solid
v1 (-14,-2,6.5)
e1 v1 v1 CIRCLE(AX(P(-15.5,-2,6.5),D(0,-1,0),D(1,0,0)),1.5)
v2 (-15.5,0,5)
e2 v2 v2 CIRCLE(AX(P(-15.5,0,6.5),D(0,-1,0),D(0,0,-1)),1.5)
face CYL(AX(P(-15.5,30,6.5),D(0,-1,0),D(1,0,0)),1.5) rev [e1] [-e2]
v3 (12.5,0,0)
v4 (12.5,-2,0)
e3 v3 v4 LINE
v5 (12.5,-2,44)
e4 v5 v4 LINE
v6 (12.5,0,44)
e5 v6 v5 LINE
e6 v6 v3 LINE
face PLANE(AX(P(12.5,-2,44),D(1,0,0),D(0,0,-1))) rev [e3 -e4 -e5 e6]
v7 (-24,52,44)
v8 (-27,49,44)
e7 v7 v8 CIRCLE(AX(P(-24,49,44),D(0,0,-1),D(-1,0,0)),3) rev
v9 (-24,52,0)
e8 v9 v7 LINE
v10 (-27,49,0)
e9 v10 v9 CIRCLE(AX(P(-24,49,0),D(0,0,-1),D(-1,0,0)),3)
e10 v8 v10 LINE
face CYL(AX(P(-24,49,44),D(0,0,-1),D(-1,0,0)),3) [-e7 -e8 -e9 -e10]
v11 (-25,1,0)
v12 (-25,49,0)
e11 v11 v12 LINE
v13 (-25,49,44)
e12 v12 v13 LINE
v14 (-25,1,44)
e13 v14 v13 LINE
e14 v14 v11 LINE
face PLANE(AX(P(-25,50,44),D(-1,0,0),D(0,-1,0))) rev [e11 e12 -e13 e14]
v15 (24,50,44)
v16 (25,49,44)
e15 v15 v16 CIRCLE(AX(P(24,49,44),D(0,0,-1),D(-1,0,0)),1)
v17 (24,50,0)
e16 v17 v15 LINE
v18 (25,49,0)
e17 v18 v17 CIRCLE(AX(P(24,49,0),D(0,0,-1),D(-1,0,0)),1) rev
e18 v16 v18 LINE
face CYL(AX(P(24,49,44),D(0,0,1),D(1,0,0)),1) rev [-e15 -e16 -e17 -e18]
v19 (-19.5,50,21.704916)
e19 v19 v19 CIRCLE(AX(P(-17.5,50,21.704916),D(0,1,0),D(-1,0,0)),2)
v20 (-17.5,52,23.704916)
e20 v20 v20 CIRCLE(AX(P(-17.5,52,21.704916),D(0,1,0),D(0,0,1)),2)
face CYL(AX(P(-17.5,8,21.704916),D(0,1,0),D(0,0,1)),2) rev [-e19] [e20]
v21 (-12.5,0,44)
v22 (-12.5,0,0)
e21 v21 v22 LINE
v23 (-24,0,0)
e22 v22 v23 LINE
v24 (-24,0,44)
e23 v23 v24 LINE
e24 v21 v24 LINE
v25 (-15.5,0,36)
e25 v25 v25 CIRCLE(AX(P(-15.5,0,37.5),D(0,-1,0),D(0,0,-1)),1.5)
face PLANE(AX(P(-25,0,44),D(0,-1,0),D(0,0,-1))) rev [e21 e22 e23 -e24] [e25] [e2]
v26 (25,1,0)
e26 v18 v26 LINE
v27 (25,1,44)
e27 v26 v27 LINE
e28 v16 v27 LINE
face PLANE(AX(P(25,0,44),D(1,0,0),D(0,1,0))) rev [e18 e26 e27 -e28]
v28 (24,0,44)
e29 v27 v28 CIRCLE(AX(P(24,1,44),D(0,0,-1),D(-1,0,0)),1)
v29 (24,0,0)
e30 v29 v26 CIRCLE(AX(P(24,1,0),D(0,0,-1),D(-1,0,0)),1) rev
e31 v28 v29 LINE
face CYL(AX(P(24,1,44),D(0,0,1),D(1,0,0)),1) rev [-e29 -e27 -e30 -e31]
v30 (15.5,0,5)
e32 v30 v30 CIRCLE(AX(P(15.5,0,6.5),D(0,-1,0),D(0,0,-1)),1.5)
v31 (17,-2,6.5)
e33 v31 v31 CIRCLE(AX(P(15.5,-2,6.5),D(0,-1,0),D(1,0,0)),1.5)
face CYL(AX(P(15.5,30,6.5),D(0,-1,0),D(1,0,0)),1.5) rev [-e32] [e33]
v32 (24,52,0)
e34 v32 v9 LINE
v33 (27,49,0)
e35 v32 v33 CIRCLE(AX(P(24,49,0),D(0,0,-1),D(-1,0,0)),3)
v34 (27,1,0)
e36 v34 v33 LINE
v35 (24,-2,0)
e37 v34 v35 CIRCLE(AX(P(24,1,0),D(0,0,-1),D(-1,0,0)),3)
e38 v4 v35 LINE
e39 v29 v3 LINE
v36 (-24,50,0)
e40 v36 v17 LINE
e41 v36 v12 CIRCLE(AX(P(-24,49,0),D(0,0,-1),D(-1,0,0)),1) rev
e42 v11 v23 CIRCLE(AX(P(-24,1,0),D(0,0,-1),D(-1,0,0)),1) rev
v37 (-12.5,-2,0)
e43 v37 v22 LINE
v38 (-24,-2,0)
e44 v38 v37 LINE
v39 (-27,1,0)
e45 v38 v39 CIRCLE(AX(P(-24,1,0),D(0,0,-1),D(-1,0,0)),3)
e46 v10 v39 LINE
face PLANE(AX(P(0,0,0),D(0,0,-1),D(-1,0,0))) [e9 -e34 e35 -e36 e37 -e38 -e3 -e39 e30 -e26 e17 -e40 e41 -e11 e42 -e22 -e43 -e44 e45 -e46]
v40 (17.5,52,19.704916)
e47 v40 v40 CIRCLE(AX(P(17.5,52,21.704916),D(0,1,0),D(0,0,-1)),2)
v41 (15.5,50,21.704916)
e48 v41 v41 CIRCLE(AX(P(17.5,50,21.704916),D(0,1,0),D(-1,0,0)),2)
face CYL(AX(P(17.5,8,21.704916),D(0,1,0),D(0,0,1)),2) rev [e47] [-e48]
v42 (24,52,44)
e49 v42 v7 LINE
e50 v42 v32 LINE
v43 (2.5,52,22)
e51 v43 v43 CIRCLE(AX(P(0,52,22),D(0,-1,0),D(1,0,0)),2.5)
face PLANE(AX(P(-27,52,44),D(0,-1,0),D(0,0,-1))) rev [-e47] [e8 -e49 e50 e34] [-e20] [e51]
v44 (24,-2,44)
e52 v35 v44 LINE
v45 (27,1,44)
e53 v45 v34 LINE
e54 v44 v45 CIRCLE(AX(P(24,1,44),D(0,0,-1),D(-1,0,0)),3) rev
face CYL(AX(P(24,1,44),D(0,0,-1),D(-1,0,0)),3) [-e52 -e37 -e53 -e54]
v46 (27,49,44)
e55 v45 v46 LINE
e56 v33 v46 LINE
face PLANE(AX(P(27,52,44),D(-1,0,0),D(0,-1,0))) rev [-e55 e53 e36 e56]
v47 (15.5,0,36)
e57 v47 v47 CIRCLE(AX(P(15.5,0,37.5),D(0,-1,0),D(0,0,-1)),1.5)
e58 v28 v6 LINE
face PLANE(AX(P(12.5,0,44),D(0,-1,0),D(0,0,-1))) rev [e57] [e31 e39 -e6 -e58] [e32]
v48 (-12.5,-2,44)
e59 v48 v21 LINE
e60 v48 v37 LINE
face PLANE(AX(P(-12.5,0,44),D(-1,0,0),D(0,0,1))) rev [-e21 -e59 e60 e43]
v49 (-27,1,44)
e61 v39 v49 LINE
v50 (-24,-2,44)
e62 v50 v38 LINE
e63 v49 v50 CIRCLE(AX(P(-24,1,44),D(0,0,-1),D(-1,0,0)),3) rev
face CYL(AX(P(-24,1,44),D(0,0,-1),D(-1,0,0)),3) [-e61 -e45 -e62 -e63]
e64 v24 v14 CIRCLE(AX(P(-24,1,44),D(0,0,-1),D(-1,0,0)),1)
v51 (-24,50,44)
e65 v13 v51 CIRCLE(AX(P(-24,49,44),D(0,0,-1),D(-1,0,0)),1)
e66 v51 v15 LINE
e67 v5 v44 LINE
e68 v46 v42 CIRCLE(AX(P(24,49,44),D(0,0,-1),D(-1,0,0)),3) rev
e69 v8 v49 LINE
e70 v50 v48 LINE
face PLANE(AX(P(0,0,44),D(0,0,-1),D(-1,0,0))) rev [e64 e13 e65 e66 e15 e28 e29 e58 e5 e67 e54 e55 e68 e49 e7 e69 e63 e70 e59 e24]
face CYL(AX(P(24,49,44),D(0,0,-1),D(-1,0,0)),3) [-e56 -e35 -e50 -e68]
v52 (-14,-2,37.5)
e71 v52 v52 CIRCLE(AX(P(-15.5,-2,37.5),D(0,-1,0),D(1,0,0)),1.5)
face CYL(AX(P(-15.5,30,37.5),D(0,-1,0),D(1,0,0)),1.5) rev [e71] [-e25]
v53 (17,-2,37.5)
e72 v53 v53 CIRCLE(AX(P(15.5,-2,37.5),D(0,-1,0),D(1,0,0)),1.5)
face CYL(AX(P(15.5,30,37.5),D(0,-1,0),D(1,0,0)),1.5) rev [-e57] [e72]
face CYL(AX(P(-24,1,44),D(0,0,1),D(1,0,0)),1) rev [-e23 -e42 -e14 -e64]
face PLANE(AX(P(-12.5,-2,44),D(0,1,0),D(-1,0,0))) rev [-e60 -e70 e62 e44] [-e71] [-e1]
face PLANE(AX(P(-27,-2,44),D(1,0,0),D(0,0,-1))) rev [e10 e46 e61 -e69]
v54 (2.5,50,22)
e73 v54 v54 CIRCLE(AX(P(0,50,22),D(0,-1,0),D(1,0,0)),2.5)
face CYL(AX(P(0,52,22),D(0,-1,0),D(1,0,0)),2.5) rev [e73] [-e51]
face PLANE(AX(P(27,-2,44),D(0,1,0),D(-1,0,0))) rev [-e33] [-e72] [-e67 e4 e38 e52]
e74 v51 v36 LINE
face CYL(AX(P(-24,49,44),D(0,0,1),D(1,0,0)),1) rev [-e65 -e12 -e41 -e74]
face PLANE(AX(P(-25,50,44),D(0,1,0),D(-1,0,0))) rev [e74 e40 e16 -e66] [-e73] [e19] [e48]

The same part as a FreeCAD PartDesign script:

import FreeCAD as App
import Part
import Sketcher

V = App.Vector
Q = App.Units.Quantity


def edges_at(feature, points):
    """Names of the edges that pass closest to the given points."""
    edges = feature.Shape.Edges
    near = lambda p: min(range(len(edges)), key=lambda i: edges[i].distToShape(Part.Vertex(*p))[0])
    return sorted({f"Edge{near(p) + 1}" for p in points})

doc = App.newDocument("Part")
params = doc.addObject("Spreadsheet::Sheet", "Params")
for row, (alias, value) in enumerate([
    ("sketch1_width", "50 mm"),
    ("sketch1_width2", "54 mm"),
    ("sketch1_height", "2 mm"),
    ("sketch1_width3", "12.5 mm"),
    ("pad1_length", "44 mm"),
    ("sketch2_diameter", "3 mm"),
    ("pocket1_length", "32 mm"),
    ("sketch3_diameter", "5 mm"),
    ("sketch4_diameter", "4 mm"),
    ("pocket3_length", "44 mm"),
    ("fillet_radius", "1 mm"),
    ("fillet2_radius", "3 mm"),
], start=1):
    params.set(f"A{row}", alias)
    params.set(f"B{row}", "=" + value)
    params.setAlias(f"B{row}", alias)

body = doc.addObject("PartDesign::Body", "Body")

# Sketch on XY plane
sketch1 = doc.addObject("Sketcher::SketchObject", "Sketch")
body.addObject(sketch1)
sketch1.AttachmentSupport = (doc.XY_Plane, [""])
sketch1.MapMode = "FlatFace"
sketch1.addGeometry([
    Part.LineSegment(V(-25, 50, 0), V(25, 50, 0)),  # 0
    Part.LineSegment(V(25, 50, 0), V(25, 0, 0)),  # 1
    Part.LineSegment(V(25, 0, 0), V(12.5, 0, 0)),  # 2
    Part.LineSegment(V(12.5, 0, 0), V(12.5, -2, 0)),  # 3
    Part.LineSegment(V(12.5, -2, 0), V(27, -2, 0)),  # 4
    Part.LineSegment(V(27, -2, 0), V(27, 52, 0)),  # 5
    Part.LineSegment(V(27, 52, 0), V(-27, 52, 0)),  # 6
    Part.LineSegment(V(-27, 52, 0), V(-27, -2, 0)),  # 7
    Part.LineSegment(V(-27, -2, 0), V(-12.5, -2, 0)),  # 8
    Part.LineSegment(V(-12.5, -2, 0), V(-12.5, 0, 0)),  # 9
    Part.LineSegment(V(-12.5, 0, 0), V(-25, 0, 0)),  # 10
    Part.LineSegment(V(-25, 0, 0), V(-25, 50, 0)),  # 11
], False)
sketch1.addConstraint([
    Sketcher.Constraint("Coincident", 0, 2, 1, 1),
    Sketcher.Constraint("Coincident", 1, 2, 2, 1),
    Sketcher.Constraint("Coincident", 2, 2, 3, 1),
    Sketcher.Constraint("Coincident", 3, 2, 4, 1),
    Sketcher.Constraint("Coincident", 4, 2, 5, 1),
    Sketcher.Constraint("Coincident", 5, 2, 6, 1),
    Sketcher.Constraint("Coincident", 6, 2, 7, 1),
    Sketcher.Constraint("Coincident", 7, 2, 8, 1),
    Sketcher.Constraint("Coincident", 8, 2, 9, 1),
    Sketcher.Constraint("Coincident", 9, 2, 10, 1),
    Sketcher.Constraint("Coincident", 10, 2, 11, 1),
    Sketcher.Constraint("Coincident", 11, 2, 0, 1),
    Sketcher.Constraint("Horizontal", 0),
    Sketcher.Constraint("Vertical", 1),
    Sketcher.Constraint("Horizontal", 2),
    Sketcher.Constraint("Vertical", 3),
    Sketcher.Constraint("Horizontal", 4),
    Sketcher.Constraint("Vertical", 5),
    Sketcher.Constraint("Horizontal", 6),
    Sketcher.Constraint("Vertical", 7),
    Sketcher.Constraint("Horizontal", 8),
    Sketcher.Constraint("Vertical", 9),
    Sketcher.Constraint("Horizontal", 10),
    Sketcher.Constraint("Vertical", 11),
    Sketcher.Constraint("Symmetric", 2, 2, 9, 2, -1, 1),
    Sketcher.Constraint("Symmetric", 4, 2, 7, 2, -2),
    Sketcher.Constraint("Symmetric", 1, 2, 10, 2, -2),
    Sketcher.Constraint("Equal", 0, 1),
    Sketcher.Constraint("Equal", 6, 5),
    Sketcher.Constraint("DistanceX", 0, 1, 0, 2, Q("50 mm")),
    Sketcher.Constraint("DistanceX", 6, 2, 6, 1, Q("54 mm")),
    Sketcher.Constraint("DistanceY", 3, 2, 3, 1, Q("2 mm")),
    Sketcher.Constraint("DistanceX", 2, 2, 2, 1, Q("12.5 mm")),
])
sketch1.setExpression("Constraints[29]", "Params.sketch1_width")
sketch1.setExpression("Constraints[30]", "Params.sketch1_width2")
sketch1.setExpression("Constraints[31]", "Params.sketch1_height")
sketch1.setExpression("Constraints[32]", "Params.sketch1_width3")
pad1 = doc.addObject("PartDesign::Pad", "Pad")
body.addObject(pad1)
pad1.Profile = sketch1
pad1.setExpression("Length", "Params.pad1_length")

# Sketch on XZ plane
sketch2 = doc.addObject("Sketcher::SketchObject", "Sketch001")
body.addObject(sketch2)
sketch2.AttachmentSupport = (doc.XZ_Plane, [""])
sketch2.MapMode = "FlatFace"
sketch2.AttachmentOffset = App.Placement(V(0, 0, 2), App.Rotation())
sketch2.addGeometry([
    Part.Circle(V(-15.5, 37.5, 0), V(0, 0, 1), 1.5),
    Part.Circle(V(15.5, 37.5, 0), V(0, 0, 1), 1.5),
    Part.Circle(V(15.5, 6.5, 0), V(0, 0, 1), 1.5),
    Part.Circle(V(-15.5, 6.5, 0), V(0, 0, 1), 1.5),
], False)
sketch2.addConstraint([
    Sketcher.Constraint("Equal", 0, 1),
    Sketcher.Constraint("Equal", 1, 2),
    Sketcher.Constraint("Equal", 2, 3),
    Sketcher.Constraint("Symmetric", 0, 3, 1, 3, -2),
    Sketcher.Constraint("Symmetric", 2, 3, 3, 3, -2),
    Sketcher.Constraint("Vertical", 1, 3, 2, 3),
    Sketcher.Constraint("Diameter", 0, Q("3 mm")),
    Sketcher.Constraint("DistanceX", 0, 3, 1, 3, Q("31 mm")),
    Sketcher.Constraint("DistanceY", 2, 3, 1, 3, Q("31 mm")),
    Sketcher.Constraint("DistanceY", -1, 1, 0, 3, Q("37.5 mm")),
])
sketch2.setExpression("Constraints[6]", "Params.sketch2_diameter")
pocket1 = doc.addObject("PartDesign::Pocket", "Pocket")
body.addObject(pocket1)
pocket1.Profile = sketch2
pocket1.setExpression("Length", "Params.pocket1_length")

# Sketch on XZ plane
sketch3 = doc.addObject("Sketcher::SketchObject", "Sketch002")
body.addObject(sketch3)
sketch3.AttachmentSupport = (doc.XZ_Plane, [""])
sketch3.MapMode = "FlatFace"
sketch3.AttachmentOffset = App.Placement(V(0, 0, -50), App.Rotation())
sketch3.addGeometry(Part.Circle(V(0, 22, 0), V(0, 0, 1), 2.5), False)
sketch3.addConstraint([
    Sketcher.Constraint("PointOnObject", 0, 3, -2),
    Sketcher.Constraint("Diameter", 0, Q("5 mm")),
    Sketcher.Constraint("DistanceY", -1, 1, 0, 3, Q("22 mm")),
])
sketch3.setExpression("Constraints[1]", "Params.sketch3_diameter")
pocket2 = doc.addObject("PartDesign::Pocket", "Pocket001")
body.addObject(pocket2)
pocket2.Profile = sketch3
pocket2.Type = "ThroughAll"

# Sketch on XZ plane
sketch4 = doc.addObject("Sketcher::SketchObject", "Sketch003")
body.addObject(sketch4)
sketch4.AttachmentSupport = (doc.XZ_Plane, [""])
sketch4.MapMode = "FlatFace"
sketch4.AttachmentOffset = App.Placement(V(0, 0, -52), App.Rotation())
sketch4.addGeometry([
    Part.Circle(V(-17.5, 21.704916, 0), V(0, 0, 1), 2),
    Part.Circle(V(17.5, 21.704916, 0), V(0, 0, 1), 2),
], False)
sketch4.addConstraint([
    Sketcher.Constraint("Equal", 0, 1),
    Sketcher.Constraint("Symmetric", 0, 3, 1, 3, -2),
    Sketcher.Constraint("Diameter", 0, Q("4 mm")),
    Sketcher.Constraint("DistanceX", 0, 3, 1, 3, Q("35 mm")),
    Sketcher.Constraint("DistanceY", -1, 1, 0, 3, Q("21.704916 mm")),
])
sketch4.setExpression("Constraints[2]", "Params.sketch4_diameter")
pocket3 = doc.addObject("PartDesign::Pocket", "Pocket002")
body.addObject(pocket3)
pocket3.Profile = sketch4
pocket3.setExpression("Length", "Params.pocket3_length")
pocket3.Reversed = True
doc.recompute()

fillet = doc.addObject("PartDesign::Fillet", "Fillet")
body.addObject(fillet)
fillet.Base = (pocket3, edges_at(pocket3, [
    (25, 0, 22),
    (25, 50, 22),
    (-25, 50, 22),
    (-25, 0, 22),
]))
fillet.setExpression("Radius", "Params.fillet_radius")
doc.recompute()

fillet2 = doc.addObject("PartDesign::Fillet", "Fillet001")
body.addObject(fillet2)
fillet2.Base = (fillet, edges_at(fillet, [
    (-27, -2, 22),
    (-27, 52, 22),
    (27, 52, 22),
    (27, -2, 22),
]))
fillet2.setExpression("Radius", "Params.fillet2_radius")

doc.recompute()
